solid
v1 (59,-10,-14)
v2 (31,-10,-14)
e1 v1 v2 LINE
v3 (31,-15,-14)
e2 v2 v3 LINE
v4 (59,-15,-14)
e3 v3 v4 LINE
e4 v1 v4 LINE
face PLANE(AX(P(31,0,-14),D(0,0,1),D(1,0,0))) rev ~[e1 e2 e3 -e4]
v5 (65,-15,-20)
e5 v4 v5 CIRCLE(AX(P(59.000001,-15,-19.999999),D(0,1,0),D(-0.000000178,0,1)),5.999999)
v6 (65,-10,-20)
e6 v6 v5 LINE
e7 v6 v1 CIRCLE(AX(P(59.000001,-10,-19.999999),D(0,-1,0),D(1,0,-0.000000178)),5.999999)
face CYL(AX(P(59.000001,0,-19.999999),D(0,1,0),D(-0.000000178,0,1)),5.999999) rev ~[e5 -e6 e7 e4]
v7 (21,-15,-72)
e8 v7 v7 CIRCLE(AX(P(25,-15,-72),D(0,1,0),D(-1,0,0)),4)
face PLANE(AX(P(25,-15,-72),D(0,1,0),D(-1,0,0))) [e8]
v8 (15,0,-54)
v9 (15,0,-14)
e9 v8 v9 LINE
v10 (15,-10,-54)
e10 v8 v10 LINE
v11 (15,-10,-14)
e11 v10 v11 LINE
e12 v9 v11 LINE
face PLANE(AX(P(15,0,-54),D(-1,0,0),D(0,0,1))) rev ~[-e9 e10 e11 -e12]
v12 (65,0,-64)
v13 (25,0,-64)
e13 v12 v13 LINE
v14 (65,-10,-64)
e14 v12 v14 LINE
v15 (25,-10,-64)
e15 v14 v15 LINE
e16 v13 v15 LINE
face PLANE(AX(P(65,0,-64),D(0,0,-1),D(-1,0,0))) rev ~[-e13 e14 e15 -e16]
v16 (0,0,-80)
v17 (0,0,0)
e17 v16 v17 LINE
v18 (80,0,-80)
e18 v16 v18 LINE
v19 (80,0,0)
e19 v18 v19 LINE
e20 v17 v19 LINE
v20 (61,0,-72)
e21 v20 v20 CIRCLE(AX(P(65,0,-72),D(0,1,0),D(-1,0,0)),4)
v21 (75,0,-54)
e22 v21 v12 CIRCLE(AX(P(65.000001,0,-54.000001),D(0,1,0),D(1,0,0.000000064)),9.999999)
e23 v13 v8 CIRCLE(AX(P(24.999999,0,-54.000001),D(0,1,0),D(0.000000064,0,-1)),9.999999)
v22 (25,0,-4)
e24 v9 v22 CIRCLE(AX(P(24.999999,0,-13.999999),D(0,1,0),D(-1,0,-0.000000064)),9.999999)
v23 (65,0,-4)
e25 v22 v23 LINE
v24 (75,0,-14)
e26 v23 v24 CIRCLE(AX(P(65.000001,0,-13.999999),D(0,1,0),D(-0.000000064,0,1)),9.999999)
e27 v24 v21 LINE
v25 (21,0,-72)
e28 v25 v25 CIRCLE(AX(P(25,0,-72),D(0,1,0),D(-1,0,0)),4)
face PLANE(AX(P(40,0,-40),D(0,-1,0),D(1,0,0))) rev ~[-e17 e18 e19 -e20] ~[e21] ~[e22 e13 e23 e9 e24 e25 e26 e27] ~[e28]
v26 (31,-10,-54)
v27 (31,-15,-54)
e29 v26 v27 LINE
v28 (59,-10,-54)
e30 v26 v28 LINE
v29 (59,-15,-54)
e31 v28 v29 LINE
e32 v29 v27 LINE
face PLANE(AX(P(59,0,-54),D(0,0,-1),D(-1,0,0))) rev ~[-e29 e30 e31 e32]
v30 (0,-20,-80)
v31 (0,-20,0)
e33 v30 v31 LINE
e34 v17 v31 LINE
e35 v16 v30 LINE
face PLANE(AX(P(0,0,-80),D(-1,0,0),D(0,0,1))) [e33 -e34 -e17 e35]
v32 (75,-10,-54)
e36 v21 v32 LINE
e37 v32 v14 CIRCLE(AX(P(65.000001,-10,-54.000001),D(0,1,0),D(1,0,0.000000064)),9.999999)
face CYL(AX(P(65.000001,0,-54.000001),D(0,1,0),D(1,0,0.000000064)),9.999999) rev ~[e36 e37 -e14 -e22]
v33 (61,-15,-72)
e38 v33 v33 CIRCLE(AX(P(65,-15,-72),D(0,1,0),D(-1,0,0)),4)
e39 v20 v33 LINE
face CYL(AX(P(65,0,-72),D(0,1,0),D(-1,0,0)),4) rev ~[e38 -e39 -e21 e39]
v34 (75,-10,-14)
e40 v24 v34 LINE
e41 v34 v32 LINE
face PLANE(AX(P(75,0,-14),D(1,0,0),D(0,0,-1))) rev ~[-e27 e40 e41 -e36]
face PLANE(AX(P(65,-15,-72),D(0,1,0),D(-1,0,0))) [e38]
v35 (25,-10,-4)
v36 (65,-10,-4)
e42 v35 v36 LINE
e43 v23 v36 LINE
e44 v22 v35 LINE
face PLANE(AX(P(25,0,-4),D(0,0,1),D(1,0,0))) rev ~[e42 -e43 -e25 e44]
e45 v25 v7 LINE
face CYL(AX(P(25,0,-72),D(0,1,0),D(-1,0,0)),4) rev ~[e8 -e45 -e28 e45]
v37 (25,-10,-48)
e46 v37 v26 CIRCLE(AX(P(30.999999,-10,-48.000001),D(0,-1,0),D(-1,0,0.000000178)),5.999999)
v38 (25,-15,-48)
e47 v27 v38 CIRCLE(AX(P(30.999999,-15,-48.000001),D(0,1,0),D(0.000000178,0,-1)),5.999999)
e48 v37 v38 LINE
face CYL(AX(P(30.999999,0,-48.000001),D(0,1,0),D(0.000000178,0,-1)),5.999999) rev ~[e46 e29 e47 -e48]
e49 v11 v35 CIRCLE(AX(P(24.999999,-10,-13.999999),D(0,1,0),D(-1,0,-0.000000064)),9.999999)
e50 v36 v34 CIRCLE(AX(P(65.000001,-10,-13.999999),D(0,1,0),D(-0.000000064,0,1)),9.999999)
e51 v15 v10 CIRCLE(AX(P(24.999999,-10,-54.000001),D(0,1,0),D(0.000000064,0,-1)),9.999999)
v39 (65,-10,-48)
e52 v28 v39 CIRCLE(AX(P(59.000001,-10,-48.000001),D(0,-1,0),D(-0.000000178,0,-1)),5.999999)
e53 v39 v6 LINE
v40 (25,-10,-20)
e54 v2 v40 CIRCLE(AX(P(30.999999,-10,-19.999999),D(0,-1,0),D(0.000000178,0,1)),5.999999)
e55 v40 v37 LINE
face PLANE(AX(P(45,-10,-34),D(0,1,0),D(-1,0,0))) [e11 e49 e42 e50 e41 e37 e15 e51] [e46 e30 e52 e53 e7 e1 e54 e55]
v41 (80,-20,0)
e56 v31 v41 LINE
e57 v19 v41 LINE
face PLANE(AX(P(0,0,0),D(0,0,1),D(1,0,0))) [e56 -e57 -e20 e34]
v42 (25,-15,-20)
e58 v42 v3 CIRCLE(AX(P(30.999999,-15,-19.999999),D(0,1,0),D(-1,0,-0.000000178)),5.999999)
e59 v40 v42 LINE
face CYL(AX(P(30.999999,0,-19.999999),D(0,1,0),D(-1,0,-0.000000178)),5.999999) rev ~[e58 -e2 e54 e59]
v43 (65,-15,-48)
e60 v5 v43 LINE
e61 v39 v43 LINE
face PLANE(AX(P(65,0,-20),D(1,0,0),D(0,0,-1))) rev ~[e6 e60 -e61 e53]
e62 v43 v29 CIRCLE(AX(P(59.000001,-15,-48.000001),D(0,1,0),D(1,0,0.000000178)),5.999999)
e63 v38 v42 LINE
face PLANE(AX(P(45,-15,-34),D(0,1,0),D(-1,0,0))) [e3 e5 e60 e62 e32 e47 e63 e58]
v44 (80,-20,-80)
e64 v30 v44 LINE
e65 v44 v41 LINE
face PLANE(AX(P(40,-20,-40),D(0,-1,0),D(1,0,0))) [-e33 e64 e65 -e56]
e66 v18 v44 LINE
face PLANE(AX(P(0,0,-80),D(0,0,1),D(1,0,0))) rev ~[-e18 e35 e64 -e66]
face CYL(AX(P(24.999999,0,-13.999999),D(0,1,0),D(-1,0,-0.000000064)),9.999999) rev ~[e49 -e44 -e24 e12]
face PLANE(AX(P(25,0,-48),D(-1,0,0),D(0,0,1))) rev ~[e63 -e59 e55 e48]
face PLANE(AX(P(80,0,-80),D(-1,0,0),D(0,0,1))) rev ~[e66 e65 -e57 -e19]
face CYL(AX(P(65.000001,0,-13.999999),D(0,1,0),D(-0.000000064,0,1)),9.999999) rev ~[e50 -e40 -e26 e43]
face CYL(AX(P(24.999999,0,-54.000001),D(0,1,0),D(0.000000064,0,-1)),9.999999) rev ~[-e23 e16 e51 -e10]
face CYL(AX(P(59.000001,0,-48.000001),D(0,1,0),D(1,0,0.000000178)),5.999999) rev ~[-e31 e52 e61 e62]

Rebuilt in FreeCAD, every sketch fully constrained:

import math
import FreeCAD as App
import Part
import Sketcher
Q = App.Units.Quantity


def add_polygon(sketch, points):
    """Adds a closed chain of lines whose ends are joined by coincident constraints."""
    first, n = sketch.GeometryCount, len(points)
    for a, b in zip(points, points[1:] + points[:1]):
        sketch.addGeometry(Part.LineSegment(App.Vector(*a, 0), App.Vector(*b, 0)), False)
    for i in range(n):
        sketch.addConstraint(Sketcher.Constraint("Coincident", first + i, 2, first + (i + 1) % n, 1))

doc = App.newDocument("Part")
params = doc.addObject("Spreadsheet::Sheet", "Params")
for row, (alias, value) in enumerate([
    ("sketch1_width", "80 mm"),
    ("pad1_length", "20 mm"),
    ("sketch2_diameter", "8 mm"),
    ("pocket1_length", "15 mm"),
    ("sketch3_radius", "5.999999 mm"),
    ("sketch3_width", "28 mm"),
    ("pocket2_length", "15 mm"),
    ("sketch4_radius", "9.999999 mm"),
    ("sketch4_radius2", "5.999999 mm"),
    ("sketch4_width", "40 mm"),
    ("pocket3_length", "10 mm"),
], start=1):
    params.set(f"A{row}", alias)
    params.set(f"B{row}", "=" + value)
    params.setAlias(f"B{row}", alias)

body = doc.addObject("PartDesign::Body", "Body")

# Sketch on XZ plane
sketch1 = body.newObject("Sketcher::SketchObject", "Sketch")
sketch1.AttachmentSupport = (doc.getObject("XZ_Plane"), [""])
sketch1.MapMode = "FlatFace"
add_polygon(sketch1, [(0, 0), (0, -80), (80, -80), (80, 0)])  # lines 0-3
sketch1.addConstraint([
    Sketcher.Constraint("Vertical", 0),
    Sketcher.Constraint("Horizontal", 1),
    Sketcher.Constraint("Vertical", 2),
    Sketcher.Constraint("Horizontal", 3),
    Sketcher.Constraint("Coincident", 3, 2, -1, 1),
    Sketcher.Constraint("Equal", 3, 0),
    Sketcher.Constraint("DistanceX", 1, 1, 1, 2, Q("80 mm")),
])
sketch1.setExpression("Constraints[10]", "Params.sketch1_width")
pad1 = body.newObject("PartDesign::Pad", "Pad")
pad1.Profile = sketch1
pad1.setExpression("Length", "Params.pad1_length")

# Sketch on XZ plane
sketch2 = body.newObject("Sketcher::SketchObject", "Sketch001")
sketch2.AttachmentSupport = (doc.getObject("XZ_Plane"), [""])
sketch2.MapMode = "FlatFace"
sketch2.addGeometry([
    Part.Circle(App.Vector(65, -72, 0), App.Vector(0, 0, 1), 4),
    Part.Circle(App.Vector(25, -72, 0), App.Vector(0, 0, 1), 4),
], False)
sketch2.addConstraint([
    Sketcher.Constraint("Equal", 0, 1),
    Sketcher.Constraint("Horizontal", 0, 3, 1, 3),
    Sketcher.Constraint("Diameter", 0, Q("8 mm")),
    Sketcher.Constraint("DistanceX", -1, 1, 0, 3, Q("65 mm")),
    Sketcher.Constraint("DistanceY", 0, 3, -1, 1, Q("72 mm")),
    Sketcher.Constraint("DistanceX", -1, 1, 1, 3, Q("25 mm")),
])
sketch2.setExpression("Constraints[2]", "Params.sketch2_diameter")
pocket1 = body.newObject("PartDesign::Pocket", "Pocket")
pocket1.Profile = sketch2
pocket1.setExpression("Length", "Params.pocket1_length")
pocket1.Reversed = True

# Sketch on XZ plane
sketch3 = body.newObject("Sketcher::SketchObject", "Sketch002")
sketch3.AttachmentSupport = (doc.getObject("XZ_Plane"), [""])
sketch3.MapMode = "FlatFace"
sketch3.addGeometry([
    Part.ArcOfCircle(Part.Circle(App.Vector(59.000001, -48.000001, 0), App.Vector(0, 0, 1), 5.999999), math.radians(-90.00001), math.radians(0.00001)),  # 0
    Part.LineSegment(App.Vector(59, -54, 0), App.Vector(31, -54, 0)),  # 1
    Part.ArcOfCircle(Part.Circle(App.Vector(30.999999, -48.000001, 0), App.Vector(0, 0, 1), 5.999999), math.radians(179.99999), math.radians(270.00001)),  # 2
    Part.LineSegment(App.Vector(25, -48, 0), App.Vector(25, -20, 0)),  # 3
    Part.ArcOfCircle(Part.Circle(App.Vector(30.999999, -19.999999, 0), App.Vector(0, 0, 1), 5.999999), math.radians(89.99999), math.radians(180.00001)),  # 4
    Part.LineSegment(App.Vector(31, -14, 0), App.Vector(59, -14, 0)),  # 5
    Part.ArcOfCircle(Part.Circle(App.Vector(59.000001, -19.999999, 0), App.Vector(0, 0, 1), 5.999999), math.radians(-0.00001), math.radians(90.00001)),  # 6
    Part.LineSegment(App.Vector(65, -20, 0), App.Vector(65, -48, 0)),  # 7
], False)
sketch3.addConstraint([
    Sketcher.Constraint("Tangent", 0, 1, 1, 1),
    Sketcher.Constraint("Tangent", 1, 2, 2, 2),
    Sketcher.Constraint("Tangent", 2, 1, 3, 1),
    Sketcher.Constraint("Tangent", 3, 2, 4, 2),
    Sketcher.Constraint("Tangent", 4, 1, 5, 1),
    Sketcher.Constraint("Tangent", 5, 2, 6, 2),
    Sketcher.Constraint("Tangent", 6, 1, 7, 1),
    Sketcher.Constraint("Tangent", 7, 2, 0, 2),
    Sketcher.Constraint("Horizontal", 1),
    Sketcher.Constraint("Vertical", 3),
    Sketcher.Constraint("Horizontal", 5),
    Sketcher.Constraint("Vertical", 7),
    Sketcher.Constraint("Equal", 0, 2),
    Sketcher.Constraint("Equal", 2, 4),
    Sketcher.Constraint("Equal", 4, 6),
    Sketcher.Constraint("Equal", 5, 3),
    Sketcher.Constraint("Radius", 0, Q("5.999999 mm")),
    Sketcher.Constraint("DistanceX", 1, 2, 1, 1, Q("28 mm")),
    Sketcher.Constraint("DistanceX", -1, 1, 0, 3, Q("59.000001 mm")),
    Sketcher.Constraint("DistanceY", 0, 3, -1, 1, Q("48.000001 mm")),
])
sketch3.setExpression("Constraints[16]", "Params.sketch3_radius")
sketch3.setExpression("Constraints[17]", "Params.sketch3_width")
pocket2 = body.newObject("PartDesign::Pocket", "Pocket001")
pocket2.Profile = sketch3
pocket2.setExpression("Length", "Params.pocket2_length")
pocket2.Reversed = True

# Sketch on XZ plane
sketch4 = body.newObject("Sketcher::SketchObject", "Sketch003")
sketch4.AttachmentSupport = (doc.getObject("XZ_Plane"), [""])
sketch4.MapMode = "FlatFace"
sketch4.addGeometry([
    Part.LineSegment(App.Vector(75, -14, 0), App.Vector(75, -54, 0)),  # 0
    Part.ArcOfCircle(Part.Circle(App.Vector(65.000001, -54.000001, 0), App.Vector(0, 0, 1), 9.999999), math.radians(-90.000004), math.radians(0.000004)),  # 1
    Part.LineSegment(App.Vector(65, -64, 0), App.Vector(25, -64, 0)),  # 2
    Part.ArcOfCircle(Part.Circle(App.Vector(24.999999, -54.000001, 0), App.Vector(0, 0, 1), 9.999999), math.radians(179.999996), math.radians(270.000004)),  # 3
    Part.LineSegment(App.Vector(15, -54, 0), App.Vector(15, -14, 0)),  # 4
    Part.ArcOfCircle(Part.Circle(App.Vector(24.999999, -13.999999, 0), App.Vector(0, 0, 1), 9.999999), math.radians(89.999996), math.radians(180.000004)),  # 5
    Part.LineSegment(App.Vector(25, -4, 0), App.Vector(65, -4, 0)),  # 6
    Part.ArcOfCircle(Part.Circle(App.Vector(65.000001, -13.999999, 0), App.Vector(0, 0, 1), 9.999999), math.radians(-0.000004), math.radians(90.000004)),  # 7
    Part.ArcOfCircle(Part.Circle(App.Vector(30.999999, -48.000001, 0), App.Vector(0, 0, 1), 5.999999), math.radians(179.99999), math.radians(270.00001)),  # 8
    Part.LineSegment(App.Vector(31, -54, 0), App.Vector(59, -54, 0)),  # 9
    Part.ArcOfCircle(Part.Circle(App.Vector(59.000001, -48.000001, 0), App.Vector(0, 0, 1), 5.999999), math.radians(-90.00001), math.radians(0.00001)),  # 10
    Part.LineSegment(App.Vector(65, -48, 0), App.Vector(65, -20, 0)),  # 11
    Part.ArcOfCircle(Part.Circle(App.Vector(59.000001, -19.999999, 0), App.Vector(0, 0, 1), 5.999999), math.radians(-0.00001), math.radians(90.00001)),  # 12
    Part.LineSegment(App.Vector(59, -14, 0), App.Vector(31, -14, 0)),  # 13
    Part.ArcOfCircle(Part.Circle(App.Vector(30.999999, -19.999999, 0), App.Vector(0, 0, 1), 5.999999), math.radians(89.99999), math.radians(180.00001)),  # 14
    Part.LineSegment(App.Vector(25, -20, 0), App.Vector(25, -48, 0)),  # 15
], False)
sketch4.addConstraint([
    Sketcher.Constraint("Tangent", 0, 2, 1, 2),
    Sketcher.Constraint("Tangent", 1, 1, 2, 1),
    Sketcher.Constraint("Tangent", 2, 2, 3, 2),
    Sketcher.Constraint("Tangent", 3, 1, 4, 1),
    Sketcher.Constraint("Tangent", 4, 2, 5, 2),
    Sketcher.Constraint("Tangent", 5, 1, 6, 1),
    Sketcher.Constraint("Tangent", 6, 2, 7, 2),
    Sketcher.Constraint("Tangent", 7, 1, 0, 1),
    Sketcher.Constraint("Tangent", 8, 2, 9, 1),
    Sketcher.Constraint("Tangent", 9, 2, 10, 1),
    Sketcher.Constraint("Tangent", 10, 2, 11, 1),
    Sketcher.Constraint("Tangent", 11, 2, 12, 1),
    Sketcher.Constraint("Tangent", 12, 2, 13, 1),
    Sketcher.Constraint("Tangent", 13, 2, 14, 1),
    Sketcher.Constraint("Tangent", 14, 2, 15, 1),
    Sketcher.Constraint("Tangent", 15, 2, 8, 1),
    Sketcher.Constraint("Vertical", 0),
    Sketcher.Constraint("Horizontal", 2),
    Sketcher.Constraint("Vertical", 4),
    Sketcher.Constraint("Horizontal", 6),
    Sketcher.Constraint("Horizontal", 9),
    Sketcher.Constraint("Vertical", 11),
    Sketcher.Constraint("Horizontal", 13),
    Sketcher.Constraint("Vertical", 15),
    Sketcher.Constraint("Equal", 1, 3),
    Sketcher.Constraint("Equal", 3, 5),
    Sketcher.Constraint("Equal", 5, 7),
    Sketcher.Constraint("Equal", 8, 10),
    Sketcher.Constraint("Equal", 10, 12),
    Sketcher.Constraint("Equal", 12, 14),
    Sketcher.Constraint("Horizontal", 3, 1, 8, 2),
    Sketcher.Constraint("Horizontal", 7, 1, 12, 2),
    Sketcher.Constraint("Vertical", 6, 2, 10, 2),
    Sketcher.Constraint("Vertical", 5, 1, 14, 2),
    Sketcher.Constraint("Equal", 6, 0),
    Sketcher.Constraint("Radius", 1, Q("9.999999 mm")),
    Sketcher.Constraint("Radius", 8, Q("5.999999 mm")),
    Sketcher.Constraint("DistanceX", 2, 2, 2, 1, Q("40 mm")),
    Sketcher.Constraint("DistanceX", -1, 1, 1, 3, Q("65.000001 mm")),
    Sketcher.Constraint("DistanceY", 1, 3, -1, 1, Q("54.000001 mm")),
])
sketch4.setExpression("Constraints[35]", "Params.sketch4_radius")
sketch4.setExpression("Constraints[36]", "Params.sketch4_radius2")
sketch4.setExpression("Constraints[37]", "Params.sketch4_width")
pocket3 = body.newObject("PartDesign::Pocket", "Pocket002")
pocket3.Profile = sketch4
pocket3.setExpression("Length", "Params.pocket3_length")
pocket3.Reversed = True

doc.recompute()
